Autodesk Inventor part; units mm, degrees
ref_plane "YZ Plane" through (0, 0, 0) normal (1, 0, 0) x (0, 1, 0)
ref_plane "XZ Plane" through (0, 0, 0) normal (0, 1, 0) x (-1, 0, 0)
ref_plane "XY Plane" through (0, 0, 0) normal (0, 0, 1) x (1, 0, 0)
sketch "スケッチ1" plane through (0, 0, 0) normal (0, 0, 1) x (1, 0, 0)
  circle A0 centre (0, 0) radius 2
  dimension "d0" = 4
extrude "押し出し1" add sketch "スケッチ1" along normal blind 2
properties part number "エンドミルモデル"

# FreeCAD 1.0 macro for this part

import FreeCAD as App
import Part
import Sketcher
from FreeCAD import Vector

doc = App.newDocument("Part")
body = doc.addObject("PartDesign::Body", "Body")

sketch1 = body.newObject("Sketcher::SketchObject", "Sketch")
sketch1.AttachmentSupport = (doc.getObject("XY_Plane"), [""])
sketch1.MapMode = "FlatFace"
sketch1.addGeometry(Part.Circle(Vector(0, 0, 0), Vector(0, 0, 1), 2), False)
sketch1.addConstraint([
    Sketcher.Constraint("Coincident", 0, 3, -1, 1),
    Sketcher.Constraint("Diameter", 0, 4.0),
])
pad1 = body.newObject("PartDesign::Pad", "Pad")
pad1.Profile = sketch1
pad1.Length = 2

doc.recompute()
